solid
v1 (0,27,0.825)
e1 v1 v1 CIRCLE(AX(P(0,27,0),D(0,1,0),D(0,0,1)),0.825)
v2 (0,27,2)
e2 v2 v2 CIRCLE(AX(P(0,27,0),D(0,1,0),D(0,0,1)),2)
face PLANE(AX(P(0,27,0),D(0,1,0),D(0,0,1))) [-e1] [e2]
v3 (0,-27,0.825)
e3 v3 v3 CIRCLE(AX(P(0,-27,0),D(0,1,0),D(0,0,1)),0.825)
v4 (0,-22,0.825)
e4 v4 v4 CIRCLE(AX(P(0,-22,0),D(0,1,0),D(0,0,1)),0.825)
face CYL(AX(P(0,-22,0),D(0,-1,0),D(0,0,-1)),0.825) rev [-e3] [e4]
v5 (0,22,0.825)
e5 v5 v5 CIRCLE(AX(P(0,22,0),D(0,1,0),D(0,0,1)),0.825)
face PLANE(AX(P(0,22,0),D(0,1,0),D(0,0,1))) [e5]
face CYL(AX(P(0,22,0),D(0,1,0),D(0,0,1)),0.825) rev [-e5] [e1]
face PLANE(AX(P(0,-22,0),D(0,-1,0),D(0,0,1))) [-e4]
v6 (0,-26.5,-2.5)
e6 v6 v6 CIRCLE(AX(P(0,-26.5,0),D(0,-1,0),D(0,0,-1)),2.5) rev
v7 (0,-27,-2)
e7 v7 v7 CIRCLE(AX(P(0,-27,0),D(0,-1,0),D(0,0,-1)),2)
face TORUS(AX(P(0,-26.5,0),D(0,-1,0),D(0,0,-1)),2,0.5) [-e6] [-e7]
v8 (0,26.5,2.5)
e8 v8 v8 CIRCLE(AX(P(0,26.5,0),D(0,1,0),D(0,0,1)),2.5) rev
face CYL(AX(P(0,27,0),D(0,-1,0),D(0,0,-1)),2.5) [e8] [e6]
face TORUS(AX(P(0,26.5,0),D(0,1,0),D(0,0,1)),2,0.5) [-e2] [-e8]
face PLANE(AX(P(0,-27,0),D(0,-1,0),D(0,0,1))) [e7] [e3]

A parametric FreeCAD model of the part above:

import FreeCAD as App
import Part
import Sketcher
from FreeCAD import Vector
Q = App.Units.Quantity


def edges_at(feature, points):
    """Names of the edges that pass closest to the given points."""
    edges = feature.Shape.Edges
    near = lambda p: min(range(len(edges)), key=lambda i: edges[i].distToShape(Part.Vertex(*p))[0])
    return sorted({f"Edge{near(p) + 1}" for p in points})

doc = App.newDocument("Part")
body = doc.addObject("PartDesign::Body", "Body")

# Sketch on XZ plane
sketch1 = doc.addObject("Sketcher::SketchObject", "Sketch")
body.addObject(sketch1)
sketch1.AttachmentSupport = (doc.XZ_Plane, [""])
sketch1.MapMode = "FlatFace"
sketch1.addGeometry(Part.Circle(Vector(0, 0, 0), Vector(0, 0, 1), 2.5), False)
sketch1.addConstraint([
    Sketcher.Constraint("Coincident", 0, 3, -1, 1),
    Sketcher.Constraint("Diameter", 0, Q("5 mm")),
])
pad1 = doc.addObject("PartDesign::Pad", "Pad")
body.addObject(pad1)
pad1.Profile = sketch1
pad1.Length = 27
pad1.Reversed = True

# Sketch on XZ plane
sketch2 = doc.addObject("Sketcher::SketchObject", "Sketch001")
body.addObject(sketch2)
sketch2.AttachmentSupport = (doc.XZ_Plane, [""])
sketch2.MapMode = "FlatFace"
sketch2.AttachmentOffset = App.Placement(Vector(0, 0, -27), App.Rotation())
sketch2.addGeometry(Part.Circle(Vector(0, 0, 0), Vector(0, 0, 1), 0.8), False)
sketch2.addConstraint([
    Sketcher.Constraint("Coincident", 0, 3, -1, 1),
    Sketcher.Constraint("Diameter", 0, Q("1.65 mm")),
])
pocket1 = doc.addObject("PartDesign::Pocket", "Pocket")
body.addObject(pocket1)
pocket1.Profile = sketch2
pocket1.Length = 5
pocket1.Reversed = True
doc.recompute()

fillet = doc.addObject("PartDesign::Fillet", "Fillet")
body.addObject(fillet)
fillet.Base = (pocket1, edges_at(pocket1, [(0, 27, -2.5)]))
fillet.Radius = 0.5
doc.recompute()

mirrored = doc.addObject("PartDesign::Mirrored", "Mirrored")
body.addObject(mirrored)
mirrored.Originals = [pad1, pocket1]
mirrored.MirrorPlane = (doc.XZ_Plane, [""])
body.Tip = mirrored
doc.recompute()

fillet2 = doc.addObject("PartDesign::Fillet", "Fillet001")
body.addObject(fillet2)
fillet2.Base = (mirrored, edges_at(mirrored, [(0, -27, -2.5)]))
fillet2.Radius = 0.5

doc.recompute()
